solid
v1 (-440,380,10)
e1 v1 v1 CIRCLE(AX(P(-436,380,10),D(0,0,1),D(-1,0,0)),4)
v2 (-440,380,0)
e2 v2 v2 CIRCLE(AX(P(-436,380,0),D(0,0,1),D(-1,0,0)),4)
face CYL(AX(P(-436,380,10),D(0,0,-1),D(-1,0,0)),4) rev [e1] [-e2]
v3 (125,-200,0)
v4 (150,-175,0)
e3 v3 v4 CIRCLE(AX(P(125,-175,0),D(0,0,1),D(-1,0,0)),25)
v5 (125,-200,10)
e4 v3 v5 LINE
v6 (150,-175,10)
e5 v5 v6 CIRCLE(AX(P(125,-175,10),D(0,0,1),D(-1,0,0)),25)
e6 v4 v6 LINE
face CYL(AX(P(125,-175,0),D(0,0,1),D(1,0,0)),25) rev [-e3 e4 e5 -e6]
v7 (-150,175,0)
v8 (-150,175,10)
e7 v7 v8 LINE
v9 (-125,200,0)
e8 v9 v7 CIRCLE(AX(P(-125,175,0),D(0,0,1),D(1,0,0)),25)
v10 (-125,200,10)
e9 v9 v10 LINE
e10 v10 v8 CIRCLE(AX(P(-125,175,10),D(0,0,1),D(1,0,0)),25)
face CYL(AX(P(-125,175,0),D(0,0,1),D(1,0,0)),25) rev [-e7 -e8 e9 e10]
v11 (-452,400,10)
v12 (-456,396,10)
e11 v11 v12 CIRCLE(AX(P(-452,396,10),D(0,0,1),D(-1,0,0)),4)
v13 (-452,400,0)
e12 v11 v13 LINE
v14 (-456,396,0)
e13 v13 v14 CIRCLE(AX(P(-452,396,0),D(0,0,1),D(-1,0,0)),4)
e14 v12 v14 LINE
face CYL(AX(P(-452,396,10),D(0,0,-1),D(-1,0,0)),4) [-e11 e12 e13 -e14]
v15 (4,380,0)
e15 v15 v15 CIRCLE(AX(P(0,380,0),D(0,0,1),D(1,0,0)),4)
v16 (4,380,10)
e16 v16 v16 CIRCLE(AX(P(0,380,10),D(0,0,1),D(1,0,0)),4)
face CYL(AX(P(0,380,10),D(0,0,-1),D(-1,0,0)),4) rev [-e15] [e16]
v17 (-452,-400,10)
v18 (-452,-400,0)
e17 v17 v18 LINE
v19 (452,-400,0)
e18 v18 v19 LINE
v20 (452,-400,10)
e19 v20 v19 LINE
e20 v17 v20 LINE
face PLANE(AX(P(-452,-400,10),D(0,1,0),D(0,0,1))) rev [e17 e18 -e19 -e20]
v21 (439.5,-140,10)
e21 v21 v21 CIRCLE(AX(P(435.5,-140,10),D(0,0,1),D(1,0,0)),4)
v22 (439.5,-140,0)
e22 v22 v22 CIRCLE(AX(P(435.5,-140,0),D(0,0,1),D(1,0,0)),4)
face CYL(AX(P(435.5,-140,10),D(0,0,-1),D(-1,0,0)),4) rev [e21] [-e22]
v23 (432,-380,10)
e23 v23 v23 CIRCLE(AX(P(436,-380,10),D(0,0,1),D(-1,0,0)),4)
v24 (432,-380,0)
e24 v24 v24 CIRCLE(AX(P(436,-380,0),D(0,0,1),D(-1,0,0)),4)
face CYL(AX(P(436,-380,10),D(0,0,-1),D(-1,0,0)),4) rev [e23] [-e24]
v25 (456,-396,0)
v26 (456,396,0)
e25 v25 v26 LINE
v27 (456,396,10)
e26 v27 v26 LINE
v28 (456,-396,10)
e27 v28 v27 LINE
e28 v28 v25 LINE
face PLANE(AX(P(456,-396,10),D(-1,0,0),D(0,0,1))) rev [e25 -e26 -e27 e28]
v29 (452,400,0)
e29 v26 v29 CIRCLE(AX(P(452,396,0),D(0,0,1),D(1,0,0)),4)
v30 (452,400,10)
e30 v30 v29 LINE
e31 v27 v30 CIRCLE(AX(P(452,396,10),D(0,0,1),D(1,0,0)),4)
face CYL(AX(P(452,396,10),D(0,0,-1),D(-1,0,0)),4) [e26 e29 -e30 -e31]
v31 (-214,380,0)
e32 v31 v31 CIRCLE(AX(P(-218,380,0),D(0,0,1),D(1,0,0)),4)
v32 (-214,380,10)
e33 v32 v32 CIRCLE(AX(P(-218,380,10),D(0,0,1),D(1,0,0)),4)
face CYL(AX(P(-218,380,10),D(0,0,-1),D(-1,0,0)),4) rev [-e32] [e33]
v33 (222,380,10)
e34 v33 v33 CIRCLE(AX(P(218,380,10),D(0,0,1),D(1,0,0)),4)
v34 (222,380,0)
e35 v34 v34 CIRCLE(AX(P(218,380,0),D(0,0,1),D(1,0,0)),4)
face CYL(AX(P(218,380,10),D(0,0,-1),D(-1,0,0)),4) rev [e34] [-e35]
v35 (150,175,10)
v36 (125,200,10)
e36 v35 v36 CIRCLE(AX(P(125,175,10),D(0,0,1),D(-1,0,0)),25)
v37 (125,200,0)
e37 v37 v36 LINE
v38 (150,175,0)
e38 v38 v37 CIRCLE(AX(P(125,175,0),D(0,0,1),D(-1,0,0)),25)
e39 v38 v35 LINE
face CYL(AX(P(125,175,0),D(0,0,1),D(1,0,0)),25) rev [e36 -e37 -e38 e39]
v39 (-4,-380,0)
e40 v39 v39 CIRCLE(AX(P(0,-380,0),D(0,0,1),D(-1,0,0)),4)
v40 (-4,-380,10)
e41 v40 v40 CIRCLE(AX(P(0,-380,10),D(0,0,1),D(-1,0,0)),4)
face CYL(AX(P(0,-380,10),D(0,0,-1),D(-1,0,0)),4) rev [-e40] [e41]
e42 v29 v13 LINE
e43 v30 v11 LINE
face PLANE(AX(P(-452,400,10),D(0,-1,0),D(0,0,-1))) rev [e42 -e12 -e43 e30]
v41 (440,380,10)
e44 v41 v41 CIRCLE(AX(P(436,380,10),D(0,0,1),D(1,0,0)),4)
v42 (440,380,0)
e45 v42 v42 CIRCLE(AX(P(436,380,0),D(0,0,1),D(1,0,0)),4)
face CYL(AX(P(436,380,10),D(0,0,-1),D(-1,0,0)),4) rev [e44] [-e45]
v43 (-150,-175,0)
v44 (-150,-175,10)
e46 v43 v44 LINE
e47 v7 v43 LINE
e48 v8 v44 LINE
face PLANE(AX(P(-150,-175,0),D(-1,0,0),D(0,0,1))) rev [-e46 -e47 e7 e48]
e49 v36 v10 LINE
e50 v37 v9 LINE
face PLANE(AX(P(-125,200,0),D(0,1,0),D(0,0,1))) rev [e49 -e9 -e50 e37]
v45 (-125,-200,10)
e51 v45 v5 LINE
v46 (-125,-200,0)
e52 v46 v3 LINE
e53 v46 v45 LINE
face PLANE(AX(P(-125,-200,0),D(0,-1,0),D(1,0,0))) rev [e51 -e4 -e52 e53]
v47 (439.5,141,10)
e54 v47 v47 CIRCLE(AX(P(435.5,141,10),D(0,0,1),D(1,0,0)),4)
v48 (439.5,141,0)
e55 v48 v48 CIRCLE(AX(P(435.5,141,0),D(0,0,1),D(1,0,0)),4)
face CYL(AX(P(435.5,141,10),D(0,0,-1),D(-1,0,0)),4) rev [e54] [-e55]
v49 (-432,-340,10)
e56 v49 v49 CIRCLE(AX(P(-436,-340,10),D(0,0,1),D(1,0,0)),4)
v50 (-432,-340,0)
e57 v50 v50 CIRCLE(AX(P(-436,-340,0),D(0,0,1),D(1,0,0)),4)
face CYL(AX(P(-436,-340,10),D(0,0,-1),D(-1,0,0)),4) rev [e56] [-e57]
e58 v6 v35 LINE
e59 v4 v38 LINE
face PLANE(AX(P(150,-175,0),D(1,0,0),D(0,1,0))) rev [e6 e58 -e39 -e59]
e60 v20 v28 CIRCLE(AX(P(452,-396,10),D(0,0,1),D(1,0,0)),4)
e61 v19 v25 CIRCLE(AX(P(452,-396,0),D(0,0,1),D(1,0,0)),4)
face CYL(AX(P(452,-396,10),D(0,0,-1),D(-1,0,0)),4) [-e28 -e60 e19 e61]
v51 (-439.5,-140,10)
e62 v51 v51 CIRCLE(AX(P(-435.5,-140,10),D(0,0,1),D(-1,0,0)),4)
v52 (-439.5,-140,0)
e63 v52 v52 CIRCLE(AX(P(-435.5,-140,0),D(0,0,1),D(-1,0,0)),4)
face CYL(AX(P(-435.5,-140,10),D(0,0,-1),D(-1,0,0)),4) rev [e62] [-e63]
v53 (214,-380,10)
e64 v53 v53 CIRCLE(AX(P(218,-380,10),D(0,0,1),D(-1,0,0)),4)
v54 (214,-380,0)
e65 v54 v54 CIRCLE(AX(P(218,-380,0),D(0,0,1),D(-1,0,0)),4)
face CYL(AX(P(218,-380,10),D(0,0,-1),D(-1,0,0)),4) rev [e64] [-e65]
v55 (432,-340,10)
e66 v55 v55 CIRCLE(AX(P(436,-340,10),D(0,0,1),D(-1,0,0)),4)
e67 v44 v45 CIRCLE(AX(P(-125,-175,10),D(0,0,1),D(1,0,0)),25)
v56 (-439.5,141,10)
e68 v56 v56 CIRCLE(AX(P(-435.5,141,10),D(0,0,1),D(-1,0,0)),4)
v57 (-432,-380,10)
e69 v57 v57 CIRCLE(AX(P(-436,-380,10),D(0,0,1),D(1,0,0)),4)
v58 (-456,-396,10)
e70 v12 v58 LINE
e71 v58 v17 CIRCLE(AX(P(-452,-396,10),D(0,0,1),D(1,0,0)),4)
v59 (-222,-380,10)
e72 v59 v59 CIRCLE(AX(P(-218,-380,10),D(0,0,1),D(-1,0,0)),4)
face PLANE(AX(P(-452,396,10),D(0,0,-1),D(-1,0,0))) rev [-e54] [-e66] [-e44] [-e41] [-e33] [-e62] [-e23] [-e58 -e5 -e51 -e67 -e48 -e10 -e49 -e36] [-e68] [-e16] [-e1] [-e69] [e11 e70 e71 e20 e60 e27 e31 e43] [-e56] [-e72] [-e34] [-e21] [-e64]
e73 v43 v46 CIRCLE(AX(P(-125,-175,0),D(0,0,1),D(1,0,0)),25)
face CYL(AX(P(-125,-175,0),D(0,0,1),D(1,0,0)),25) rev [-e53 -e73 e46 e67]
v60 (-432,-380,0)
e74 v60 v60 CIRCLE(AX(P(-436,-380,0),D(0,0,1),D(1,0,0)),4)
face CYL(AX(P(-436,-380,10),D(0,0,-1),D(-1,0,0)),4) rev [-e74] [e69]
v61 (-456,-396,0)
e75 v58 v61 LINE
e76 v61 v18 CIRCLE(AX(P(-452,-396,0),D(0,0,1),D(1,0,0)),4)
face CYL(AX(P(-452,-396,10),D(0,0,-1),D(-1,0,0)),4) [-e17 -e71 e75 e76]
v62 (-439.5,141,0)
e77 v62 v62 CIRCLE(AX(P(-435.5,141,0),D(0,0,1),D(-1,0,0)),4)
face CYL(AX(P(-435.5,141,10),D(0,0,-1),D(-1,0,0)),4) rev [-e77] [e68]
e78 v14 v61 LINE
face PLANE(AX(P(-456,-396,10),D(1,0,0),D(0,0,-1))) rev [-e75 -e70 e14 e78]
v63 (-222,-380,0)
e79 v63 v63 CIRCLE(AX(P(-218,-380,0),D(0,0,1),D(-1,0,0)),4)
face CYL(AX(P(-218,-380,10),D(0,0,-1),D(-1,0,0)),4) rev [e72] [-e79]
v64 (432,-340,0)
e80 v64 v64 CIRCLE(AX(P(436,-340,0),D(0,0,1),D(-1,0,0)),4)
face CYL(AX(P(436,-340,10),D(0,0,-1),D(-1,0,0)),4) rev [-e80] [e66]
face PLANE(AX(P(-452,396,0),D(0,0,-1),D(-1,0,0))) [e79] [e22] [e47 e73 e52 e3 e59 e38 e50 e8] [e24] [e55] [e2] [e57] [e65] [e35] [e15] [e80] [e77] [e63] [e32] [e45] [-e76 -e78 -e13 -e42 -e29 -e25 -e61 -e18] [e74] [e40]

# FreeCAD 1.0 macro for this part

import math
import FreeCAD as App
import Part
import Sketcher
from FreeCAD import Vector
Q = App.Units.Quantity

doc = App.newDocument("Part")
body = doc.addObject("PartDesign::Body", "Body")

# Sketch on XY plane
sketch1 = doc.addObject("Sketcher::SketchObject", "Sketch")
body.addObject(sketch1)
sketch1.AttachmentSupport = (doc.XY_Plane, [""])
sketch1.MapMode = "FlatFace"
sketch1.addGeometry([
    Part.LineSegment(Vector(-452, -400, 0), Vector(452, -400, 0)),  # 0
    Part.ArcOfCircle(Part.Circle(Vector(452, -396, 0), Vector(0, 0, 1), 4), math.radians(-90), math.radians(0)),  # 1
    Part.LineSegment(Vector(456, -396, 0), Vector(456, 396, 0)),  # 2
    Part.ArcOfCircle(Part.Circle(Vector(452, 396, 0), Vector(0, 0, 1), 4), math.radians(0), math.radians(90)),  # 3
    Part.LineSegment(Vector(452, 400, 0), Vector(-452, 400, 0)),  # 4
    Part.ArcOfCircle(Part.Circle(Vector(-452, 396, 0), Vector(0, 0, 1), 4), math.radians(90), math.radians(180)),  # 5
    Part.LineSegment(Vector(-456, 396, 0), Vector(-456, -396, 0)),  # 6
    Part.ArcOfCircle(Part.Circle(Vector(-452, -396, 0), Vector(0, 0, 1), 4), math.radians(180), math.radians(270)),  # 7
    Part.Circle(Vector(-436, -380, 0), Vector(0, 0, 1), 4),  # 8
    Part.Circle(Vector(-436, -340, 0), Vector(0, 0, 1), 4),  # 9
    Part.Circle(Vector(-218, -380, 0), Vector(0, 0, 1), 4),  # 10
    Part.Circle(Vector(-435.5, -140, 0), Vector(0, 0, 1), 4),  # 11
    Part.Circle(Vector(0, -380, 0), Vector(0, 0, 1), 4),  # 12
    Part.Circle(Vector(218, -380, 0), Vector(0, 0, 1), 4),  # 13
    Part.Circle(Vector(436, -380, 0), Vector(0, 0, 1), 4),  # 14
    Part.Circle(Vector(436, -340, 0), Vector(0, 0, 1), 4),  # 15
    Part.Circle(Vector(435.5, -140, 0), Vector(0, 0, 1), 4),  # 16
    Part.Circle(Vector(-435.5, 141, 0), Vector(0, 0, 1), 4),  # 17
    Part.Circle(Vector(-436, 380, 0), Vector(0, 0, 1), 4),  # 18
    Part.Circle(Vector(-218, 380, 0), Vector(0, 0, 1), 4),  # 19
    Part.Circle(Vector(435.5, 141, 0), Vector(0, 0, 1), 4),  # 20
    Part.Circle(Vector(0, 380, 0), Vector(0, 0, 1), 4),  # 21
    Part.Circle(Vector(218, 380, 0), Vector(0, 0, 1), 4),  # 22
    Part.Circle(Vector(436, 380, 0), Vector(0, 0, 1), 4),  # 23
], False)
sketch1.addConstraint([
    Sketcher.Constraint("Tangent", 0, 2, 1, 1),
    Sketcher.Constraint("Tangent", 1, 2, 2, 1),
    Sketcher.Constraint("Tangent", 2, 2, 3, 1),
    Sketcher.Constraint("Tangent", 3, 2, 4, 1),
    Sketcher.Constraint("Tangent", 4, 2, 5, 1),
    Sketcher.Constraint("Tangent", 5, 2, 6, 1),
    Sketcher.Constraint("Tangent", 6, 2, 7, 1),
    Sketcher.Constraint("Tangent", 7, 2, 0, 1),
    Sketcher.Constraint("Horizontal", 0),
    Sketcher.Constraint("Vertical", 2),
    Sketcher.Constraint("Horizontal", 4),
    Sketcher.Constraint("Vertical", 6),
    Sketcher.Constraint("Equal", 1, 3),
    Sketcher.Constraint("Equal", 3, 5),
    Sketcher.Constraint("Equal", 5, 7),
    Sketcher.Constraint("Equal", 7, 8),
    Sketcher.Constraint("Equal", 8, 9),
    Sketcher.Constraint("Equal", 9, 10),
    Sketcher.Constraint("Equal", 10, 11),
    Sketcher.Constraint("Equal", 11, 12),
    Sketcher.Constraint("Equal", 12, 13),
    Sketcher.Constraint("Equal", 13, 14),
    Sketcher.Constraint("Equal", 14, 15),
    Sketcher.Constraint("Equal", 15, 16),
    Sketcher.Constraint("Equal", 16, 17),
    Sketcher.Constraint("Equal", 17, 18),
    Sketcher.Constraint("Equal", 18, 19),
    Sketcher.Constraint("Equal", 19, 20),
    Sketcher.Constraint("Equal", 20, 21),
    Sketcher.Constraint("Equal", 21, 22),
    Sketcher.Constraint("Equal", 22, 23),
    Sketcher.Constraint("Symmetric", 1, 3, 5, 3, -1, 1),
    Sketcher.Constraint("Symmetric", 14, 3, 18, 3, -1, 1),
    Sketcher.Constraint("Symmetric", 13, 3, 19, 3, -1, 1),
    Sketcher.Constraint("Symmetric", 12, 3, 21, 3, -1, 1),
    Sketcher.Constraint("Symmetric", 10, 3, 22, 3, -1, 1),
    Sketcher.Constraint("Symmetric", 8, 3, 23, 3, -1, 1),
    Sketcher.Constraint("Symmetric", 10, 3, 13, 3, -2),
    Sketcher.Constraint("Symmetric", 8, 3, 14, 3, -2),
    Sketcher.Constraint("Symmetric", 9, 3, 15, 3, -2),
    Sketcher.Constraint("Symmetric", 11, 3, 16, 3, -2),
    Sketcher.Constraint("Symmetric", 17, 3, 20, 3, -2),
    Sketcher.Constraint("PointOnObject", 12, 3, -2),
    Sketcher.Constraint("Horizontal", 8, 3, 10, 3),
    Sketcher.Constraint("Horizontal", 10, 3, 12, 3),
    Sketcher.Constraint("Vertical", 8, 3, 9, 3),
    Sketcher.Constraint("Vertical", 11, 3, 17, 3),
    Sketcher.Constraint("Diameter", 8, Q("8 mm")),
    Sketcher.Constraint("DistanceX", 0, 1, 0, 2, Q("904 mm")),
    Sketcher.Constraint("DistanceY", 2, 1, 2, 2, Q("792 mm")),
    Sketcher.Constraint("DistanceX", 8, 3, -1, 1, Q("436 mm")),
    Sketcher.Constraint("DistanceY", 8, 3, -1, 1, Q("380 mm")),
    Sketcher.Constraint("DistanceY", 9, 3, -1, 1, Q("340 mm")),
    Sketcher.Constraint("DistanceX", 10, 3, -1, 1, Q("218 mm")),
    Sketcher.Constraint("DistanceY", 11, 3, -1, 1, Q("140 mm")),
    Sketcher.Constraint("DistanceY", -1, 1, 17, 3, Q("141 mm")),
    Sketcher.Constraint("DistanceX", 11, 3, -1, 1, Q("435.5 mm")),
])
pad1 = doc.addObject("PartDesign::Pad", "Pad")
body.addObject(pad1)
pad1.Profile = sketch1
pad1.Length = 10

# Sketch on XY plane
sketch2 = doc.addObject("Sketcher::SketchObject", "Sketch001")
body.addObject(sketch2)
sketch2.AttachmentSupport = (doc.XY_Plane, [""])
sketch2.MapMode = "FlatFace"
sketch2.AttachmentOffset = App.Placement(Vector(0, 0, 10), App.Rotation())
sketch2.addGeometry([
    Part.LineSegment(Vector(-125, -200, 0), Vector(125, -200, 0)),  # 0
    Part.ArcOfCircle(Part.Circle(Vector(125, -175, 0), Vector(0, 0, 1), 25), math.radians(-90), math.radians(0)),  # 1
    Part.LineSegment(Vector(150, -175, 0), Vector(150, 175, 0)),  # 2
    Part.ArcOfCircle(Part.Circle(Vector(125, 175, 0), Vector(0, 0, 1), 25), math.radians(0), math.radians(90)),  # 3
    Part.LineSegment(Vector(125, 200, 0), Vector(-125, 200, 0)),  # 4
    Part.ArcOfCircle(Part.Circle(Vector(-125, 175, 0), Vector(0, 0, 1), 25), math.radians(90), math.radians(180)),  # 5
    Part.LineSegment(Vector(-150, 175, 0), Vector(-150, -175, 0)),  # 6
    Part.ArcOfCircle(Part.Circle(Vector(-125, -175, 0), Vector(0, 0, 1), 25), math.radians(180), math.radians(270)),  # 7
], False)
sketch2.addConstraint([
    Sketcher.Constraint("Tangent", 0, 2, 1, 1),
    Sketcher.Constraint("Tangent", 1, 2, 2, 1),
    Sketcher.Constraint("Tangent", 2, 2, 3, 1),
    Sketcher.Constraint("Tangent", 3, 2, 4, 1),
    Sketcher.Constraint("Tangent", 4, 2, 5, 1),
    Sketcher.Constraint("Tangent", 5, 2, 6, 1),
    Sketcher.Constraint("Tangent", 6, 2, 7, 1),
    Sketcher.Constraint("Tangent", 7, 2, 0, 1),
    Sketcher.Constraint("Horizontal", 0),
    Sketcher.Constraint("Vertical", 2),
    Sketcher.Constraint("Horizontal", 4),
    Sketcher.Constraint("Vertical", 6),
    Sketcher.Constraint("Equal", 1, 3),
    Sketcher.Constraint("Equal", 3, 5),
    Sketcher.Constraint("Equal", 5, 7),
    Sketcher.Constraint("Symmetric", 1, 3, 5, 3, -1, 1),
    Sketcher.Constraint("Radius", 1, Q("25 mm")),
    Sketcher.Constraint("DistanceX", 0, 1, 0, 2, Q("250 mm")),
    Sketcher.Constraint("DistanceY", 2, 1, 2, 2, Q("350 mm")),
])
pocket1 = doc.addObject("PartDesign::Pocket", "Pocket")
body.addObject(pocket1)
pocket1.Profile = sketch2
pocket1.Type = "ThroughAll"

doc.recompute()
